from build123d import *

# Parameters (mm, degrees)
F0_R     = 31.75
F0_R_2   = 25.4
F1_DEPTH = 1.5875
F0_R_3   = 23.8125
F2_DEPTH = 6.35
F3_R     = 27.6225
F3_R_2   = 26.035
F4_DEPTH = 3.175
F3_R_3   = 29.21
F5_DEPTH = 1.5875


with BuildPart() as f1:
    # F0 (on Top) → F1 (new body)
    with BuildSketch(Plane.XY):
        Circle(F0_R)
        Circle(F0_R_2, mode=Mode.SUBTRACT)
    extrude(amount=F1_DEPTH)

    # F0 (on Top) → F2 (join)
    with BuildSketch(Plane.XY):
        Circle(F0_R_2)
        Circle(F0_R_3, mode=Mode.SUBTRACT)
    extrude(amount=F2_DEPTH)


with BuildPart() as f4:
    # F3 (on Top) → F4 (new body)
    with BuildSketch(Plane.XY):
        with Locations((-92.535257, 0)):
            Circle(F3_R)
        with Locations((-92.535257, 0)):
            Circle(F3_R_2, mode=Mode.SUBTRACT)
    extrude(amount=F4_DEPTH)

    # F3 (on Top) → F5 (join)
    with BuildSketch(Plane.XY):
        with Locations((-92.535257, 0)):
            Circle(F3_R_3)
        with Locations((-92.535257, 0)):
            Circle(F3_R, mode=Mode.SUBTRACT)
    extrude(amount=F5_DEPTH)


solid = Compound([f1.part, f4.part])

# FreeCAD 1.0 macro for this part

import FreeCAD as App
import Part
import Sketcher

V = App.Vector
Q = App.Units.Quantity

doc = App.newDocument("Part")
body = doc.addObject("PartDesign::Body", "Body")

# Sketch on XY plane
sketch1 = body.newObject("Sketcher::SketchObject", "Sketch")
sketch1.AttachmentSupport = (doc.getObject("XY_Plane"), [""])
sketch1.MapMode = "FlatFace"
sketch1.addGeometry([
    Part.Circle(V(0, 0, 0), V(0, 0, 1), 32),
    Part.Circle(V(0, 0, 0), V(0, 0, 1), 25),
], False)
sketch1.addConstraint([
    Sketcher.Constraint("Coincident", 0, 3, -1, 1),
    Sketcher.Constraint("Coincident", 1, 3, -1, 1),
    Sketcher.Constraint("Diameter", 1, Q("2 in")),
    Sketcher.Constraint("Diameter", 0, Q("2.5 in")),
])
pad1 = body.newObject("PartDesign::Pad", "Pad")
pad1.Profile = sketch1
pad1.Length = Q("0.0625 in")

# Sketch on XY plane
sketch2 = body.newObject("Sketcher::SketchObject", "Sketch001")
sketch2.AttachmentSupport = (doc.getObject("XY_Plane"), [""])
sketch2.MapMode = "FlatFace"
sketch2.addGeometry([
    Part.Circle(V(0, 0, 0), V(0, 0, 1), 25),
    Part.Circle(V(0, 0, 0), V(0, 0, 1), 24),
], False)
sketch2.addConstraint([
    Sketcher.Constraint("Coincident", 0, 3, -1, 1),
    Sketcher.Constraint("Coincident", 1, 3, -1, 1),
    Sketcher.Constraint("Diameter", 0, Q("2 in")),
    Sketcher.Constraint("Diameter", 1, Q("1.875 in")),
])
pad2 = body.newObject("PartDesign::Pad", "Pad001")
pad2.Profile = sketch2
pad2.Length = Q("0.25 in")
body2 = doc.addObject("PartDesign::Body", "Body001")

# Sketch on XY plane
sketch3 = body2.newObject("Sketcher::SketchObject", "Sketch002")
sketch3.AttachmentSupport = (doc.getObject("XY_Plane001"), [""])
sketch3.MapMode = "FlatFace"
sketch3.addGeometry([
    Part.Circle(V(-93, 0, 0), V(0, 0, 1), 28),
    Part.Circle(V(-93, 0, 0), V(0, 0, 1), 26),
], False)
sketch3.addConstraint([
    Sketcher.Constraint("Coincident", 1, 3, 0, 3),
    Sketcher.Constraint("PointOnObject", 0, 3, -1),
    Sketcher.Constraint("Diameter", 1, Q("2.05 in")),
    Sketcher.Constraint("Diameter", 0, Q("2.175 in")),
    Sketcher.Constraint("DistanceX", 0, 3, -1, 1, Q("92.535257 mm")),
])
pad3 = body2.newObject("PartDesign::Pad", "Pad002")
pad3.Profile = sketch3
pad3.Length = Q("0.125 in")

# Sketch on XY plane
sketch4 = body2.newObject("Sketcher::SketchObject", "Sketch003")
sketch4.AttachmentSupport = (doc.getObject("XY_Plane001"), [""])
sketch4.MapMode = "FlatFace"
sketch4.addGeometry([
    Part.Circle(V(-93, 0, 0), V(0, 0, 1), 29),
    Part.Circle(V(-93, 0, 0), V(0, 0, 1), 28),
], False)
sketch4.addConstraint([
    Sketcher.Constraint("Coincident", 1, 3, 0, 3),
    Sketcher.Constraint("PointOnObject", 0, 3, -1),
    Sketcher.Constraint("Diameter", 0, Q("2.3 in")),
    Sketcher.Constraint("Diameter", 1, Q("2.175 in")),
    Sketcher.Constraint("DistanceX", 0, 3, -1, 1, Q("92.535257 mm")),
])
pad4 = body2.newObject("PartDesign::Pad", "Pad003")
pad4.Profile = sketch4
pad4.Length = Q("0.0625 in")

doc.recompute()
